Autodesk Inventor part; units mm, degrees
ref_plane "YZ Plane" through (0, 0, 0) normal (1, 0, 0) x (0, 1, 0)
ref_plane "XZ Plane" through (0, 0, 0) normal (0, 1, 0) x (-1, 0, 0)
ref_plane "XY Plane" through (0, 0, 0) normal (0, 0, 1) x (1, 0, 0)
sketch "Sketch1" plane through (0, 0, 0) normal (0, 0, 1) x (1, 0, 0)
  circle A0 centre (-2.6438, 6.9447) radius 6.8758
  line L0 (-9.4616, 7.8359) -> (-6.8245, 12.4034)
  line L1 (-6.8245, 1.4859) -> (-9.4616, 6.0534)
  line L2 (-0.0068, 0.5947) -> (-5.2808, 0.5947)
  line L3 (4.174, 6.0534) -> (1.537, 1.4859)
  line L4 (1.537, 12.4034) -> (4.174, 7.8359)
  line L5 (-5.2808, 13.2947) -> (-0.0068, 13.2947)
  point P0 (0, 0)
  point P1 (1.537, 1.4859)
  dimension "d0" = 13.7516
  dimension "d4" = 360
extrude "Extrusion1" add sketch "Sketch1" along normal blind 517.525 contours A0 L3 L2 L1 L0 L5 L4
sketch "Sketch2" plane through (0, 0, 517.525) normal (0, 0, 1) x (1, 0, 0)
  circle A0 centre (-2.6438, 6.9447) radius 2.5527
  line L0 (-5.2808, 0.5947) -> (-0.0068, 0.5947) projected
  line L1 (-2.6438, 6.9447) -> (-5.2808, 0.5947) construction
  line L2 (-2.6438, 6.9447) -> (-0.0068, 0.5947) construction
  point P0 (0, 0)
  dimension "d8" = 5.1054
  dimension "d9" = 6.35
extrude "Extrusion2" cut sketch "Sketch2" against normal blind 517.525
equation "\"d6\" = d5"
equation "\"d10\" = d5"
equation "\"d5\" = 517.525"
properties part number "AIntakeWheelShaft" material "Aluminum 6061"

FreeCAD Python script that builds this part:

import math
import FreeCAD as App
import Part
import Sketcher

V = App.Vector
Q = App.Units.Quantity

doc = App.newDocument("Part")
body = doc.addObject("PartDesign::Body", "Body")

sketch1 = body.newObject("Sketcher::SketchObject", "Sketch")
sketch1.AttachmentSupport = (doc.getObject("XY_Plane"), [""])
sketch1.MapMode = "FlatFace"
sketch1.addGeometry(Part.ArcOfCircle(Part.Circle(V(-2.6438, 6.9447, 0), V(0, 0, 1), 6.8758), math.radians(-7.448114), math.radians(7.447287)), False)
sketch1.addGeometry(Part.LineSegment(V(4.174, 7.8359, 0), V(1.537, 12.4034, 0)), False)
sketch1.addGeometry(Part.ArcOfCircle(Part.Circle(V(-2.6438, 6.9447, 0), V(0, 0, 1), 6.8758), math.radians(52.551618), math.radians(67.448081)), False)
sketch1.addGeometry(Part.LineSegment(V(-0.0068, 13.2947, 0), V(-5.2808, 13.2947, 0)), False)
sketch1.addGeometry(Part.ArcOfCircle(Part.Circle(V(-2.6438, 6.9447, 0), V(0, 0, 1), 6.8758), math.radians(112.551919), math.radians(127.447721)), False)
sketch1.addGeometry(Part.LineSegment(V(-6.8245, 12.4034, 0), V(-9.4616, 7.8359, 0)), False)
sketch1.addGeometry(Part.ArcOfCircle(Part.Circle(V(-2.6438, 6.9447, 0), V(0, 0, 1), 6.8758), math.radians(172.552713), math.radians(187.448114)), False)
sketch1.addGeometry(Part.LineSegment(V(-9.4616, 6.0534, 0), V(-6.8245, 1.4859, 0)), False)
sketch1.addGeometry(Part.ArcOfCircle(Part.Circle(V(-2.6438, 6.9447, 0), V(0, 0, 1), 6.8758), math.radians(-127.447214), math.radians(-112.551919)), False)
sketch1.addGeometry(Part.LineSegment(V(-5.2808, 0.5947, 0), V(-0.0068, 0.5947, 0)), False)
sketch1.addGeometry(Part.ArcOfCircle(Part.Circle(V(-2.6438, 6.9447, 0), V(0, 0, 1), 6.8758), math.radians(-67.448081), math.radians(-52.552124)), False)
sketch1.addGeometry(Part.LineSegment(V(1.537, 1.4859, 0), V(4.174, 6.0534, 0)), False)
sketch1.addConstraint(Sketcher.Constraint("Coincident", 0, 2, 1, 1))
sketch1.addConstraint(Sketcher.Constraint("Coincident", 1, 2, 2, 1))
sketch1.addConstraint(Sketcher.Constraint("Coincident", 2, 2, 3, 1))
sketch1.addConstraint(Sketcher.Constraint("Coincident", 3, 2, 4, 1))
sketch1.addConstraint(Sketcher.Constraint("Coincident", 4, 2, 5, 1))
sketch1.addConstraint(Sketcher.Constraint("Coincident", 5, 2, 6, 1))
sketch1.addConstraint(Sketcher.Constraint("Coincident", 6, 2, 7, 1))
sketch1.addConstraint(Sketcher.Constraint("Coincident", 7, 2, 8, 1))
sketch1.addConstraint(Sketcher.Constraint("Coincident", 8, 2, 9, 1))
sketch1.addConstraint(Sketcher.Constraint("Coincident", 9, 2, 10, 1))
sketch1.addConstraint(Sketcher.Constraint("Coincident", 10, 2, 11, 1))
sketch1.addConstraint(Sketcher.Constraint("Coincident", 11, 2, 0, 1))
sketch1.addConstraint(Sketcher.Constraint("Horizontal", 3))
sketch1.addConstraint(Sketcher.Constraint("Horizontal", 9))
sketch1.addConstraint(Sketcher.Constraint("Coincident", 2, 3, 0, 3))
sketch1.addConstraint(Sketcher.Constraint("Coincident", 4, 3, 0, 3))
sketch1.addConstraint(Sketcher.Constraint("Coincident", 6, 3, 0, 3))
sketch1.addConstraint(Sketcher.Constraint("Coincident", 8, 3, 0, 3))
sketch1.addConstraint(Sketcher.Constraint("Coincident", 10, 3, 0, 3))
sketch1.addConstraint(Sketcher.Constraint("Equal", 0, 2))
sketch1.addConstraint(Sketcher.Constraint("Equal", 2, 4))
sketch1.addConstraint(Sketcher.Constraint("Equal", 4, 6))
sketch1.addConstraint(Sketcher.Constraint("Equal", 6, 8))
sketch1.addConstraint(Sketcher.Constraint("Equal", 8, 10))
sketch1.addConstraint(Sketcher.Constraint("Parallel", 1, 7))
sketch1.addConstraint(Sketcher.Constraint("Parallel", 5, 11))
sketch1.addConstraint(Sketcher.Constraint("Horizontal", 1, 2, 4, 2))
sketch1.addConstraint(Sketcher.Constraint("Horizontal", 0, 2, 5, 2))
sketch1.addConstraint(Sketcher.Constraint("Horizontal", 7, 2, 10, 2))
sketch1.addConstraint(Sketcher.Constraint("Vertical", 5, 2, 6, 2))
sketch1.addConstraint(Sketcher.Constraint("Vertical", 3, 2, 8, 2))
sketch1.addConstraint(Sketcher.Constraint("Radius", 0, Q("0.2707 in")))
sketch1.addConstraint(Sketcher.Constraint("Angle", 1, Q("119.9996 deg")))
sketch1.addConstraint(Sketcher.Constraint("DistanceY", 0, 3, 2, 2, Q("0.25 in")))
sketch1.addConstraint(Sketcher.Constraint("DistanceY", 10, 2, 0, 2, Q("0.25 in")))
sketch1.addConstraint(Sketcher.Constraint("DistanceY", -1, 1, 0, 2, Q("0.3085 in")))
sketch1.addConstraint(Sketcher.Constraint("DistanceX", -1, 1, 1, 2, Q("0.0605 in")))
pad1 = body.newObject("PartDesign::Pad", "Pad")
pad1.Profile = sketch1
pad1.Length = Q("20.375 in")

sketch2 = body.newObject("Sketcher::SketchObject", "Sketch001")
sketch2.AttachmentSupport = (doc.getObject("XY_Plane"), [""])
sketch2.MapMode = "FlatFace"
sketch2.AttachmentOffset = App.Placement(V(0, 0, 20.375 * 25.4), App.Rotation())
sketch2.addGeometry(Part.Circle(V(-2.6438, 6.9447, 0), V(0, 0, 1), 2.5527), False)
sketch2.addConstraint(Sketcher.Constraint("Diameter", 0, Q("0.201 in")))
sketch2.addConstraint(Sketcher.Constraint("DistanceX", 0, 3, -1, 1, Q("2.6438 mm")))
sketch2.addConstraint(Sketcher.Constraint("DistanceY", -1, 1, 0, 3, Q("6.9447 mm")))
pocket1 = body.newObject("PartDesign::Pocket", "Pocket")
pocket1.Profile = sketch2
pocket1.Length = Q("20.375 in")

doc.recompute()
